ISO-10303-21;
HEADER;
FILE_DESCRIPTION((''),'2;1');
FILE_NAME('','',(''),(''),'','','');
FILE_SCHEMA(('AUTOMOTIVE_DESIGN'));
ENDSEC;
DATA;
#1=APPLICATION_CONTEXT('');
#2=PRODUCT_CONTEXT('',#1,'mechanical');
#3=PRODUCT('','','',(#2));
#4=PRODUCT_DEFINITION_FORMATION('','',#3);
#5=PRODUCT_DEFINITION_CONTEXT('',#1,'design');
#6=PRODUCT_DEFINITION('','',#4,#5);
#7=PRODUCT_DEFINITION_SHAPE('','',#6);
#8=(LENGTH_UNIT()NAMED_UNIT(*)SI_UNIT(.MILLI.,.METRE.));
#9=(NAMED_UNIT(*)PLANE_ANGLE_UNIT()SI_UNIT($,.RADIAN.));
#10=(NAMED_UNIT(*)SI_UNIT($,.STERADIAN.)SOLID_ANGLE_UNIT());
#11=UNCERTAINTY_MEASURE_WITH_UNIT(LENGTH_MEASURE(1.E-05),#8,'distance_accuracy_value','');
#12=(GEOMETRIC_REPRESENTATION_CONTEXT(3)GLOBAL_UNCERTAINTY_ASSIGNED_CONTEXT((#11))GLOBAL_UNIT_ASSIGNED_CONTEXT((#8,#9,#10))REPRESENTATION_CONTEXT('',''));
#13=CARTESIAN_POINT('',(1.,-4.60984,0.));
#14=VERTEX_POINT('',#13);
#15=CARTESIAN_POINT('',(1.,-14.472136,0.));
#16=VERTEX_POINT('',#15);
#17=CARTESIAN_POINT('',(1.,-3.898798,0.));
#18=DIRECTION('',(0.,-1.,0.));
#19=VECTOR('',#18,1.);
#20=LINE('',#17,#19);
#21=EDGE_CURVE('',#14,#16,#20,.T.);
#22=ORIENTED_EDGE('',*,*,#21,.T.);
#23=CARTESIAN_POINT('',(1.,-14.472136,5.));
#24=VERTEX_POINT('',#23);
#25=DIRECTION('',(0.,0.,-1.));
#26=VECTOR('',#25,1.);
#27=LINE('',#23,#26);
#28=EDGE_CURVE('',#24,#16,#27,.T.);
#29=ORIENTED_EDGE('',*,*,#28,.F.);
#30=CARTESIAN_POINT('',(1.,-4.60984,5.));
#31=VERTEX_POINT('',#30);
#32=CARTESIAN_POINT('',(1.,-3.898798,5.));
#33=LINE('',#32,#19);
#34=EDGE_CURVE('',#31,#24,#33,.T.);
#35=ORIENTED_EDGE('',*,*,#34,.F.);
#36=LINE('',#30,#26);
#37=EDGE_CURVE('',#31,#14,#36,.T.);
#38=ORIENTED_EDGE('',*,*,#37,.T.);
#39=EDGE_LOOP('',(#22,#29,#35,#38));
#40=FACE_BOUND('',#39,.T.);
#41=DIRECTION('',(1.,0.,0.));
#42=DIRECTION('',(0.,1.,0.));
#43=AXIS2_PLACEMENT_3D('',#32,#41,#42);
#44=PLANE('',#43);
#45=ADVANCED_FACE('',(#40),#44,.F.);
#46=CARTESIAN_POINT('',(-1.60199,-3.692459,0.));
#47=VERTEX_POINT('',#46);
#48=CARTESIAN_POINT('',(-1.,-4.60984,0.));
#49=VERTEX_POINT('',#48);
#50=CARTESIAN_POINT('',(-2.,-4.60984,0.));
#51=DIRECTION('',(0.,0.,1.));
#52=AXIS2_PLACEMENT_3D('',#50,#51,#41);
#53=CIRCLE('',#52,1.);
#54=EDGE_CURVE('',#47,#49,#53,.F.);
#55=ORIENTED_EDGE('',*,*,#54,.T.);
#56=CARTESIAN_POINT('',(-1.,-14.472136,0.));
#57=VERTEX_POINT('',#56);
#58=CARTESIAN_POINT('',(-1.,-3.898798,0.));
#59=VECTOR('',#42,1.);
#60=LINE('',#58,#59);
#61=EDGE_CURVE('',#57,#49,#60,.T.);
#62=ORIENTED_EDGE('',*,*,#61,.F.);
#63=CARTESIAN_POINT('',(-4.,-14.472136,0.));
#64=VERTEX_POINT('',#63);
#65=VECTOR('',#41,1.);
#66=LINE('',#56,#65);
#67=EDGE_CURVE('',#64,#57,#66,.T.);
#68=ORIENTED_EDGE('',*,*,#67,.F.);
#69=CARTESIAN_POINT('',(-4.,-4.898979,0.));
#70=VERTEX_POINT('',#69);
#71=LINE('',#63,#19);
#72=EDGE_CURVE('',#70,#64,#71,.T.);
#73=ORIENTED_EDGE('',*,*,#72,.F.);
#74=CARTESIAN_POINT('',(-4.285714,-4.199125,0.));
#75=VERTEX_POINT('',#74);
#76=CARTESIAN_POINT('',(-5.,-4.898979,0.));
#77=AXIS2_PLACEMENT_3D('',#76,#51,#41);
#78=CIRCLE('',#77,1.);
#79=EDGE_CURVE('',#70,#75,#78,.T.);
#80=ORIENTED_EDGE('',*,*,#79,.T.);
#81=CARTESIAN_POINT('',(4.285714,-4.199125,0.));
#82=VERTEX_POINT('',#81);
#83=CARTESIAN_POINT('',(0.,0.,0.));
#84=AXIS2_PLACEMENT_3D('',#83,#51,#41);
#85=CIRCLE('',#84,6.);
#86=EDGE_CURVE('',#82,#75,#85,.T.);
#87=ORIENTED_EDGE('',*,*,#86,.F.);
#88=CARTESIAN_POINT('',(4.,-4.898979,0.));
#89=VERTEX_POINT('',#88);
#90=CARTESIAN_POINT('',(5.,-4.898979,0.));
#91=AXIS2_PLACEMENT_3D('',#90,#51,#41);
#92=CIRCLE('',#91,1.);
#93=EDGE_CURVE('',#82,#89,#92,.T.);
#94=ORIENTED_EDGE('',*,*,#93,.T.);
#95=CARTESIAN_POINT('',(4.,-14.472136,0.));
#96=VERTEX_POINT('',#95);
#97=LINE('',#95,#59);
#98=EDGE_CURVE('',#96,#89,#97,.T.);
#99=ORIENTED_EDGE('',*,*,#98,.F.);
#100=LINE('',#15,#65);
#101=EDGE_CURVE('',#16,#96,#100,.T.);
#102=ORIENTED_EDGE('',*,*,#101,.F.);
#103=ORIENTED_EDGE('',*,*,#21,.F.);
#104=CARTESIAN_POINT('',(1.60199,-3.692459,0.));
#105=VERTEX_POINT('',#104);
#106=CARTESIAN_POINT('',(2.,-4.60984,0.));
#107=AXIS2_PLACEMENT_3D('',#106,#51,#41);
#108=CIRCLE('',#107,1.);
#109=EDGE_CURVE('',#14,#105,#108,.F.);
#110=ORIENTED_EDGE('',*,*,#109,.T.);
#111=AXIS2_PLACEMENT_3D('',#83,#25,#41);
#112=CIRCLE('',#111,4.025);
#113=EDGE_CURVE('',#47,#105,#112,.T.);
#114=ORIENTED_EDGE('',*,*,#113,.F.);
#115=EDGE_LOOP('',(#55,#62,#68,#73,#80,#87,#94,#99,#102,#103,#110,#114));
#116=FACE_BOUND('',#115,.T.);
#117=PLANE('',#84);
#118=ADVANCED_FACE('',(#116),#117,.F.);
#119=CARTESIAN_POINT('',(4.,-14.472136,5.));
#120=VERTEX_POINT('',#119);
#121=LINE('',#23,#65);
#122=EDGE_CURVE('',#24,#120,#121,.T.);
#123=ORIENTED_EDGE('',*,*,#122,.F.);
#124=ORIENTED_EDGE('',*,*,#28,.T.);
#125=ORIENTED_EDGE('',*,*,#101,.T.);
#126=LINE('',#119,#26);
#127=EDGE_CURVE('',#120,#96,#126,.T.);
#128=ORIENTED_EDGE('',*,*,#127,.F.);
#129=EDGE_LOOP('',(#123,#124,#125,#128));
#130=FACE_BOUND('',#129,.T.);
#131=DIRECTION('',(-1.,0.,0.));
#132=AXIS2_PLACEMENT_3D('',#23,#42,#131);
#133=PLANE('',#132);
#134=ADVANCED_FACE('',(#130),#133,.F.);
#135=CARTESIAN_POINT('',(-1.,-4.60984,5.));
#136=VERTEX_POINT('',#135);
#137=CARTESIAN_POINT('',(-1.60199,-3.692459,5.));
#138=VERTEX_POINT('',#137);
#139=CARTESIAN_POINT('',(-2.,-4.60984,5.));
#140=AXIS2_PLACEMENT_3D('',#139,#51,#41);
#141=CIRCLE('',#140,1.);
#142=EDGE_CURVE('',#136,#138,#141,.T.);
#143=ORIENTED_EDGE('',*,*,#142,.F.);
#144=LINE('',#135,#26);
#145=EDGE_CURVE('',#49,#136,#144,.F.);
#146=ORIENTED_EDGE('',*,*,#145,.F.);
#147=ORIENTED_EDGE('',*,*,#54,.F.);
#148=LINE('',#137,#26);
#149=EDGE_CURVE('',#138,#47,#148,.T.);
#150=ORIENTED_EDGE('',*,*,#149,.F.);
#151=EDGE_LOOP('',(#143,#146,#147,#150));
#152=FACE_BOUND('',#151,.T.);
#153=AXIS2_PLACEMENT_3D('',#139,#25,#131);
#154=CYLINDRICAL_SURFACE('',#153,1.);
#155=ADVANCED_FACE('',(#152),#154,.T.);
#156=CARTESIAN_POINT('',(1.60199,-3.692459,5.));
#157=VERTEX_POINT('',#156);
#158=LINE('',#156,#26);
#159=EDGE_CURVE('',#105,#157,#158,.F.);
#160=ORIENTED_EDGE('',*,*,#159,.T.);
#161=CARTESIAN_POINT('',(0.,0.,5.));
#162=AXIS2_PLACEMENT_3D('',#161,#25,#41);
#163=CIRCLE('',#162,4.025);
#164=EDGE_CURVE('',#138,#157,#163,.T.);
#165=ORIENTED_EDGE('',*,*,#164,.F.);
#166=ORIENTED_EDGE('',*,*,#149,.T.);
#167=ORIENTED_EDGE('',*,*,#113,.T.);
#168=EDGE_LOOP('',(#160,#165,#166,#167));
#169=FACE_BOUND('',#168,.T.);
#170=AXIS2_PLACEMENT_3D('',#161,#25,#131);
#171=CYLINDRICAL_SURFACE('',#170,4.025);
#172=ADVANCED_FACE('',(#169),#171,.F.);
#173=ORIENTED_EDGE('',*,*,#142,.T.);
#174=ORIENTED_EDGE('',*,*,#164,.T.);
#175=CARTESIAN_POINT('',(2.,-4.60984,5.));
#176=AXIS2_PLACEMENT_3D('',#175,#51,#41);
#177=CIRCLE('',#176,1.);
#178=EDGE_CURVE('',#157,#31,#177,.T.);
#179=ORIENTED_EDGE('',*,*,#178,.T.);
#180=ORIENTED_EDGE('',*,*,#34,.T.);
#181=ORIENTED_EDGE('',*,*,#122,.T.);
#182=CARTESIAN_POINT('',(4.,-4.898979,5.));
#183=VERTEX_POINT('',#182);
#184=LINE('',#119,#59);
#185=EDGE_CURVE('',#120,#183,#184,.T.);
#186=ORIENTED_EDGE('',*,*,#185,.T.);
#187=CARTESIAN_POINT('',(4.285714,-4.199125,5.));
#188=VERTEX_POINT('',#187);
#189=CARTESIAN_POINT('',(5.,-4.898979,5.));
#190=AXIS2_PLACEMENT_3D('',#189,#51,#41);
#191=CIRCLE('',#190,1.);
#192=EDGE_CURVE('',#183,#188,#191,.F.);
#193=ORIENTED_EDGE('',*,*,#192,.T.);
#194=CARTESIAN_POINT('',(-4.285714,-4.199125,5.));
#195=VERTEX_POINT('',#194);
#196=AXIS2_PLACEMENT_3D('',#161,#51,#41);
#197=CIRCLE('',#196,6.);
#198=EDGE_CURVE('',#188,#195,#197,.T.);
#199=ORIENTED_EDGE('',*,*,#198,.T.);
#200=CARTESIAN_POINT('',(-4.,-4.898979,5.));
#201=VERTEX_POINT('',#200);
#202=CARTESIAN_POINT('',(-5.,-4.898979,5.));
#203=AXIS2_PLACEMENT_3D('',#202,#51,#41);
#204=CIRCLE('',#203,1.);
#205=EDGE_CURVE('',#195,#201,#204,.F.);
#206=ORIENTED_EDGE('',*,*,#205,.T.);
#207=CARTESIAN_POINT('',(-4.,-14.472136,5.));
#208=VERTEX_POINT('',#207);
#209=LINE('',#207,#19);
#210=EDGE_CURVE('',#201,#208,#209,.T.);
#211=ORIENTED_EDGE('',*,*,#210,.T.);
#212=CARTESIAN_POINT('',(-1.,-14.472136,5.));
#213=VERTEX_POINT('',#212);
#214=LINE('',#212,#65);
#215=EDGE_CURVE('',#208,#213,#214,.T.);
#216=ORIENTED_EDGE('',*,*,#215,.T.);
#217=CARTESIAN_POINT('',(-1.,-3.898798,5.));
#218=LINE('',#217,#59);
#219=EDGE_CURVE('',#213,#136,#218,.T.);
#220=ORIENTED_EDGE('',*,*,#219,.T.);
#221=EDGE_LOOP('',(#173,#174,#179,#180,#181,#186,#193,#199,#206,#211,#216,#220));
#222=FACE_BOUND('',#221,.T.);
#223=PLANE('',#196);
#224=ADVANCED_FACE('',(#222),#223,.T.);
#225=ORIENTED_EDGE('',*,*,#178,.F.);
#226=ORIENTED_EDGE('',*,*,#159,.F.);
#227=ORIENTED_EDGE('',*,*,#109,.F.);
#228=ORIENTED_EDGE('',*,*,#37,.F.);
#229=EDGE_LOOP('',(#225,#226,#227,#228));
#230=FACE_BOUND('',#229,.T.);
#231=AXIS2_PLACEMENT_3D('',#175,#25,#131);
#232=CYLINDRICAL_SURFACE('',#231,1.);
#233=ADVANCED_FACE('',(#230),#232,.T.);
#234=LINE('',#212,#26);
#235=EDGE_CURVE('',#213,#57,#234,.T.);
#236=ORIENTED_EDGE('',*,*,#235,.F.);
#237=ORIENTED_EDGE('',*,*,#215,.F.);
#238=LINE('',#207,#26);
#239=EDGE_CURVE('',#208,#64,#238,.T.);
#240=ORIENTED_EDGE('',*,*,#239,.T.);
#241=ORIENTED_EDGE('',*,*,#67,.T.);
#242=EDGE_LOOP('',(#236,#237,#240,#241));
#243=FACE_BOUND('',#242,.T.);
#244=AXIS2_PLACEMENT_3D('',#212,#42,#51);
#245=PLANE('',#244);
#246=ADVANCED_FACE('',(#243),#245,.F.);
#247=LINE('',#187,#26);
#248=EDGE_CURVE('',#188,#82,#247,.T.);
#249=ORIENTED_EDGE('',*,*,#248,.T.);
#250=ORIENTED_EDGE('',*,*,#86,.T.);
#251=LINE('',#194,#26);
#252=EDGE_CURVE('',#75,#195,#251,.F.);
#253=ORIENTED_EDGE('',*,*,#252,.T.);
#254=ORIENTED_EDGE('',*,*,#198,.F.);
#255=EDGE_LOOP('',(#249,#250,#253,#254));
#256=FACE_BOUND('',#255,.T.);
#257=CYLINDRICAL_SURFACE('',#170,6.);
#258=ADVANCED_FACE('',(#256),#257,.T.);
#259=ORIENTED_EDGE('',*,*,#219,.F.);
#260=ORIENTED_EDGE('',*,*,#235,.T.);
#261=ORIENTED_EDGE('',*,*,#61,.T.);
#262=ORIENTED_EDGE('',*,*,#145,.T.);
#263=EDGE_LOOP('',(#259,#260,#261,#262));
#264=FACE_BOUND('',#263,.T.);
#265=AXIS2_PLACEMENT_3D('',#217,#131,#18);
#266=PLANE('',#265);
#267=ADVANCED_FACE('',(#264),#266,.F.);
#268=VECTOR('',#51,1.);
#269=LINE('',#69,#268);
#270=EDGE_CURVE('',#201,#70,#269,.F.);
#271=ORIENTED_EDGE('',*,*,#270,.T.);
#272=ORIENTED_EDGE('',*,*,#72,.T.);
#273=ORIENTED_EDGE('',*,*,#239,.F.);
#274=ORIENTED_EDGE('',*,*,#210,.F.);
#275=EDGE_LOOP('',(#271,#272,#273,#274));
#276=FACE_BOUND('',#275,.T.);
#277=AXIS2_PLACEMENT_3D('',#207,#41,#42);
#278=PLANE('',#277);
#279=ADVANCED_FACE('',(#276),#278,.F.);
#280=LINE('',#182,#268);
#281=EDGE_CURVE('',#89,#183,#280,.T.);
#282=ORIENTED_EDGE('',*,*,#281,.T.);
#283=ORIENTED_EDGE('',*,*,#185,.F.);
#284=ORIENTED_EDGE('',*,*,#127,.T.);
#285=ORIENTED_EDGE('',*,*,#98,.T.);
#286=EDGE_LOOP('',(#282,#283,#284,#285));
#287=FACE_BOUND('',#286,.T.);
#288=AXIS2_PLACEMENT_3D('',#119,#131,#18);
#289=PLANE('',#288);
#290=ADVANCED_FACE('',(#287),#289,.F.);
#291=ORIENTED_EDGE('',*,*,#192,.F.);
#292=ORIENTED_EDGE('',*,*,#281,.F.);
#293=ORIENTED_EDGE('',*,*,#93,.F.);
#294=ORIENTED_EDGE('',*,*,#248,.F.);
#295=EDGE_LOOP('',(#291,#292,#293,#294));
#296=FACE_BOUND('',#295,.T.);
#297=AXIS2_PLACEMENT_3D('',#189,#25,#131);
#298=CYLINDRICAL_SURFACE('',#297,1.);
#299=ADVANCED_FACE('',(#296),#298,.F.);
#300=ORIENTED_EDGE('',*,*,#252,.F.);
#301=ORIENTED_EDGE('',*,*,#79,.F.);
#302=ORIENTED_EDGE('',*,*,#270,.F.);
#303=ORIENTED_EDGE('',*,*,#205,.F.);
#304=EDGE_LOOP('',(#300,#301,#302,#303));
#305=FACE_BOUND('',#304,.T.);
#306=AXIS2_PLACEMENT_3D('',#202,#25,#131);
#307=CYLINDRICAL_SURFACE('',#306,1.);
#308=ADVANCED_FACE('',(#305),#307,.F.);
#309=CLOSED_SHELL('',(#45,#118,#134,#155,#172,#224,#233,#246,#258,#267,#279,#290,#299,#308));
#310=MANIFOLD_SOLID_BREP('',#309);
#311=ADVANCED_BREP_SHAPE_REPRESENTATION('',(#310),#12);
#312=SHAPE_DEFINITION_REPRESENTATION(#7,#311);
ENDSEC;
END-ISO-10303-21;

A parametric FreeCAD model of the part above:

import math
import FreeCAD as App
import Part
import Sketcher

V = App.Vector


def edges_at(feature, points):
    """Names of the edges that pass closest to the given points."""
    edges = feature.Shape.Edges
    near = lambda p: min(range(len(edges)), key=lambda i: edges[i].distToShape(Part.Vertex(*p))[0])
    return sorted({f"Edge{near(p) + 1}" for p in points})

doc = App.newDocument("Part")
body = doc.addObject("PartDesign::Body", "Body")

sketch1 = body.newObject("Sketcher::SketchObject", "Sketch")
sketch1.AttachmentSupport = (doc.getObject("XY_Plane"), [""])
sketch1.MapMode = "FlatFace"
sketch1.addGeometry([
    Part.LineSegment(V(-1, -14.5, 0), V(-1, -3.9, 0)),
    Part.ArcOfCircle(Part.Circle(V(0, 0, 0), V(0, 0, 1), 4), math.radians(-76), math.radians(256)),
    Part.LineSegment(V(1, -3.9, 0), V(1, -14.5, 0)),
    Part.LineSegment(V(1, -14.5, 0), V(4, -14.5, 0)),
    Part.LineSegment(V(4, -14.5, 0), V(4, -4.5, 0)),
    Part.ArcOfCircle(Part.Circle(V(0, 0, 0), V(0, 0, 1), 6), math.radians(-48), math.radians(228)),
    Part.LineSegment(V(-4, -4.5, 0), V(-4, -14.5, 0)),
    Part.LineSegment(V(-4, -14.5, 0), V(-1, -14.5, 0)),
], False)
sketch1.addConstraint([
    Sketcher.Constraint("Coincident", 0, 2, 1, 2),
    Sketcher.Constraint("Coincident", 1, 1, 2, 1),
    Sketcher.Constraint("Coincident", 2, 2, 3, 1),
    Sketcher.Constraint("Coincident", 3, 2, 4, 1),
    Sketcher.Constraint("Coincident", 4, 2, 5, 1),
    Sketcher.Constraint("Coincident", 5, 2, 6, 1),
    Sketcher.Constraint("Coincident", 6, 2, 7, 1),
    Sketcher.Constraint("Coincident", 7, 2, 0, 1),
    Sketcher.Constraint("Vertical", 0),
    Sketcher.Constraint("Vertical", 2),
    Sketcher.Constraint("Horizontal", 3),
    Sketcher.Constraint("Vertical", 4),
    Sketcher.Constraint("Vertical", 6),
    Sketcher.Constraint("Horizontal", 7),
    Sketcher.Constraint("Coincident", 1, 3, -1, 1),
    Sketcher.Constraint("Coincident", 5, 3, -1, 1),
    Sketcher.Constraint("Symmetric", 3, 2, 6, 2, -2),
    Sketcher.Constraint("Horizontal", 0, 2, 1, 1),
    Sketcher.Constraint("Radius", 5, 6.0),
    Sketcher.Constraint("DistanceX", 3, 1, 3, 2, 3.0),
    Sketcher.Constraint("DistanceY", 4, 1, 4, 2, 10.0),
    Sketcher.Constraint("DistanceX", 0, 2, -1, 1, 1.0),
    Sketcher.Constraint("Radius", 1, 4.025),
])
pad1 = body.newObject("PartDesign::Pad", "Pad")
pad1.Profile = sketch1
pad1.Length = 5
doc.recompute()

fillet = body.newObject("PartDesign::Fillet", "Fillet")
fillet.Base = (pad1, edges_at(pad1, [
    (-1, -3.899, 2.5),
    (-4, -4.472, 2.5),
    (4, -4.472, 2.5),
    (1, -3.899, 2.5),
]))
fillet.Radius = 1

doc.recompute()
